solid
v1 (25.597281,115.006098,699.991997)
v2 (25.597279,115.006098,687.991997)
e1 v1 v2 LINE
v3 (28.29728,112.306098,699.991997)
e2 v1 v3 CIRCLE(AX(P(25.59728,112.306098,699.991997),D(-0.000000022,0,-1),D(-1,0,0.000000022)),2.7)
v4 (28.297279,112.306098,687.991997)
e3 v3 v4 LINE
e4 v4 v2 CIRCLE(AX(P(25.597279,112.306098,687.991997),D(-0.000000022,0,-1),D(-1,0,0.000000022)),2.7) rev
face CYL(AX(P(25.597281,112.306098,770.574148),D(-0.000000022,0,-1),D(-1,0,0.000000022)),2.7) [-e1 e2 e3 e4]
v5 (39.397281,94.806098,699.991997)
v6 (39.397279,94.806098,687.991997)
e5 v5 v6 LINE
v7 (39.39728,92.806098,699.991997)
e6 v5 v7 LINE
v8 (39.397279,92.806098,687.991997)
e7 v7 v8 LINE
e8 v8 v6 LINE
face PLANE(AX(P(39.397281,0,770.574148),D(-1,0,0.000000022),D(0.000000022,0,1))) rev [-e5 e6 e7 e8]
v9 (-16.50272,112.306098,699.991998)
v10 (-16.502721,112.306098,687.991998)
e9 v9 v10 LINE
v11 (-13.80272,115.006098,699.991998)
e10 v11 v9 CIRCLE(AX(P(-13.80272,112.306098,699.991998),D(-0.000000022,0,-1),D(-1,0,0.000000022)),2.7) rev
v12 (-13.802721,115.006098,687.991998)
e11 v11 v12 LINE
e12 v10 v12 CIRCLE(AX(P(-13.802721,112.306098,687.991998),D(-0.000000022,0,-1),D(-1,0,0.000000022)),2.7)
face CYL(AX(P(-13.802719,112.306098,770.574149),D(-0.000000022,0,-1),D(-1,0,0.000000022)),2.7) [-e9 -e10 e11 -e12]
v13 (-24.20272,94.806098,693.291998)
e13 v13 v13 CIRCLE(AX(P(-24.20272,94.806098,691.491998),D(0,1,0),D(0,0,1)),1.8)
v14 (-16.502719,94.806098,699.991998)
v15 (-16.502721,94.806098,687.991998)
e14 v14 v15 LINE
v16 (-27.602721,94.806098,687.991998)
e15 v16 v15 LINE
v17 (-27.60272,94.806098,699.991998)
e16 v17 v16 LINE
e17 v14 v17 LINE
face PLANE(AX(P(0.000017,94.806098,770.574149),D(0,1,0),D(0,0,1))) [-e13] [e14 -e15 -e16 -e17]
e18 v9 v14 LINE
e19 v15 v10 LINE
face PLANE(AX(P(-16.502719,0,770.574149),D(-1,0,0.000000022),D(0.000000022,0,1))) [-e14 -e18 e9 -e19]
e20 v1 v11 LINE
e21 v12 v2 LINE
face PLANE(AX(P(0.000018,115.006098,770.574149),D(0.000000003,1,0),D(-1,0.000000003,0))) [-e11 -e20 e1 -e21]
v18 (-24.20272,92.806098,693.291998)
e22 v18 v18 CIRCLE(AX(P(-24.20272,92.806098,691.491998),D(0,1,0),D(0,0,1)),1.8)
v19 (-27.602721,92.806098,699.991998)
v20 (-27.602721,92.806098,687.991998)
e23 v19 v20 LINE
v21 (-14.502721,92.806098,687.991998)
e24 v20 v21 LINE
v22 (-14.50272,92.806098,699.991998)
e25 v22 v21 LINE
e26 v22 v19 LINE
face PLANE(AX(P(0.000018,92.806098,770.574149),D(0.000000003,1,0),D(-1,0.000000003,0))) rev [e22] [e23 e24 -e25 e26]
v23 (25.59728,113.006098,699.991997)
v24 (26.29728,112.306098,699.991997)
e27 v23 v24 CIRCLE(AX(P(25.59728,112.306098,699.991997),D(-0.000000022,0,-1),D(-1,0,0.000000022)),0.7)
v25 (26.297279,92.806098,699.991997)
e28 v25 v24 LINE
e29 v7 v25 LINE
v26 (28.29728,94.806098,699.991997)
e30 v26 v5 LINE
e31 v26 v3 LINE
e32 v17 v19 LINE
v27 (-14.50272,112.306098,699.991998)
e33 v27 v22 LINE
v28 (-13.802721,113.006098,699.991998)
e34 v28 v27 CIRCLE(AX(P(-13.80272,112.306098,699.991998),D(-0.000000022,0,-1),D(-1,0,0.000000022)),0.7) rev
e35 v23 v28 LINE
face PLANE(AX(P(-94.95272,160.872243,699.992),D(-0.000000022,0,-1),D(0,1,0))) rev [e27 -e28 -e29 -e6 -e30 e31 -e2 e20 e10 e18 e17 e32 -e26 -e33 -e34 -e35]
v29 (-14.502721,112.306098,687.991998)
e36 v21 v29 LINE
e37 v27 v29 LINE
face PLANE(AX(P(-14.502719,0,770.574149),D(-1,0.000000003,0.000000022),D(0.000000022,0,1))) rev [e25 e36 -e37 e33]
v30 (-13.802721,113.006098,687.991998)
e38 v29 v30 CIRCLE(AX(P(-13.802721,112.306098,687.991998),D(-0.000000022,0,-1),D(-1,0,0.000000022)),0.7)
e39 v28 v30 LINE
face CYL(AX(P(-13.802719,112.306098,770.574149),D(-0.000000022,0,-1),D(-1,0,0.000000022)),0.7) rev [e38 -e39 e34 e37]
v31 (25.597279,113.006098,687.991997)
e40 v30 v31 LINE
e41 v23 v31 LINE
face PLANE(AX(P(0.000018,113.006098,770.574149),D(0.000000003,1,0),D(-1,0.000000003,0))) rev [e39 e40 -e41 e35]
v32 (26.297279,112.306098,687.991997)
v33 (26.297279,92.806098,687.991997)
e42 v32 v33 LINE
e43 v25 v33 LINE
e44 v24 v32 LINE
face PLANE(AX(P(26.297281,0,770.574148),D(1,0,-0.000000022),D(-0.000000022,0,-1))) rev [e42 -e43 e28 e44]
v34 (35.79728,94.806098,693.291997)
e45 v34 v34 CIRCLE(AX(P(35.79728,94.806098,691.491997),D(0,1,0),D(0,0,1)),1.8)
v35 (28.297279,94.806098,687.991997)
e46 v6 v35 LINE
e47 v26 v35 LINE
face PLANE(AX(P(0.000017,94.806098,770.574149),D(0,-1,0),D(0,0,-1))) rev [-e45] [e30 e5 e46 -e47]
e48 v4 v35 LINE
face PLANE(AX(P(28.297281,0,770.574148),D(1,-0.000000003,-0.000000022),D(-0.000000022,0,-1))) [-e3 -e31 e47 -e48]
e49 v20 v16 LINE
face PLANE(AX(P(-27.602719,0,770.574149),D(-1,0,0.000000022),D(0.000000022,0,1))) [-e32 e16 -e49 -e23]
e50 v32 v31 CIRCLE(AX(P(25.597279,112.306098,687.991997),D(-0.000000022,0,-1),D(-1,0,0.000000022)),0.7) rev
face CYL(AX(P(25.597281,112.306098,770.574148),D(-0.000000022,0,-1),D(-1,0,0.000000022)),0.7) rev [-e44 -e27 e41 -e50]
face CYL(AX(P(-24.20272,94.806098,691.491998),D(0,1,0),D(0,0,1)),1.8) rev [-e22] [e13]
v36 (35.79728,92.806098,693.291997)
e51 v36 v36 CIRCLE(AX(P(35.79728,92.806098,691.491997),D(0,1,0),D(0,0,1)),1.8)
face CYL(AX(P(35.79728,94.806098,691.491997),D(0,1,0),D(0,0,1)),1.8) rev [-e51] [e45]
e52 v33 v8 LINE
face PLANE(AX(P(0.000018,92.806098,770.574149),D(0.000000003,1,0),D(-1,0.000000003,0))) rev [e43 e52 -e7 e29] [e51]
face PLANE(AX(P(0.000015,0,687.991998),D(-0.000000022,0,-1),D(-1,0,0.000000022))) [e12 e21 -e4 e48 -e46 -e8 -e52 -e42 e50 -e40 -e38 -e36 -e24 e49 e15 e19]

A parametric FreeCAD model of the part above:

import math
import FreeCAD as App
import Part
import Sketcher

doc = App.newDocument("Part")
body = doc.addObject("PartDesign::Body", "Body")

# Sketch on XY plane
sketch1 = body.newObject("Sketcher::SketchObject", "Sketch")
sketch1.AttachmentSupport = (doc.getObject("XY_Plane"), [""])
sketch1.MapMode = "FlatFace"
sketch1.AttachmentOffset = App.Placement(App.Vector(0, 0, 687.991999), App.Rotation())
sketch1.addGeometry([
    Part.LineSegment(App.Vector(-14.5, 92.8, 0), App.Vector(-14.5, 93.3, 0)),  # 0
    Part.LineSegment(App.Vector(-14.5, 93.3, 0), App.Vector(-14.5, 112.3, 0)),  # 1
    Part.ArcOfCircle(Part.Circle(App.Vector(-13.8, 112.3, 0), App.Vector(0, 0, 1), 0.7), math.radians(90), math.radians(180)),  # 2
    Part.LineSegment(App.Vector(-13.8, 113, 0), App.Vector(25.6, 113, 0)),  # 3
    Part.ArcOfCircle(Part.Circle(App.Vector(25.6, 112.3, 0), App.Vector(0, 0, 1), 0.7), math.radians(0), math.radians(90)),  # 4
    Part.LineSegment(App.Vector(26.3, 112.3, 0), App.Vector(26.3, 93.3, 0)),  # 5
    Part.LineSegment(App.Vector(26.3, 93.3, 0), App.Vector(26.3, 92.8, 0)),  # 6
    Part.LineSegment(App.Vector(26.3, 92.8, 0), App.Vector(39.4, 92.8, 0)),  # 7
    Part.LineSegment(App.Vector(39.4, 92.8, 0), App.Vector(39.4, 94.8, 0)),  # 8
    Part.LineSegment(App.Vector(39.4, 94.8, 0), App.Vector(28.3, 94.8, 0)),  # 9
    Part.LineSegment(App.Vector(28.3, 94.8, 0), App.Vector(28.3, 112.3, 0)),  # 10
    Part.ArcOfCircle(Part.Circle(App.Vector(25.6, 112.3, 0), App.Vector(0, 0, 1), 2.7), math.radians(0), math.radians(90)),  # 11
    Part.LineSegment(App.Vector(25.6, 115, 0), App.Vector(-13.8, 115, 0)),  # 12
    Part.ArcOfCircle(Part.Circle(App.Vector(-13.8, 112.3, 0), App.Vector(0, 0, 1), 2.7), math.radians(90), math.radians(180)),  # 13
    Part.LineSegment(App.Vector(-16.5, 112.3, 0), App.Vector(-16.5, 94.8, 0)),  # 14
    Part.LineSegment(App.Vector(-16.5, 94.8, 0), App.Vector(-27.6, 94.8, 0)),  # 15
    Part.LineSegment(App.Vector(-27.6, 94.8, 0), App.Vector(-27.6, 92.8, 0)),  # 16
    Part.LineSegment(App.Vector(-27.6, 92.8, 0), App.Vector(-14.5, 92.8, 0)),  # 17
], False)
sketch1.addConstraint([
    Sketcher.Constraint("Coincident", 0, 2, 1, 1),
    Sketcher.Constraint("Tangent", 1, 2, 2, 2),
    Sketcher.Constraint("Tangent", 2, 1, 3, 1),
    Sketcher.Constraint("Tangent", 3, 2, 4, 2),
    Sketcher.Constraint("Tangent", 4, 1, 5, 1),
    Sketcher.Constraint("Coincident", 5, 2, 6, 1),
    Sketcher.Constraint("Coincident", 6, 2, 7, 1),
    Sketcher.Constraint("Coincident", 7, 2, 8, 1),
    Sketcher.Constraint("Coincident", 8, 2, 9, 1),
    Sketcher.Constraint("Coincident", 9, 2, 10, 1),
    Sketcher.Constraint("Tangent", 10, 2, 11, 1),
    Sketcher.Constraint("Tangent", 11, 2, 12, 1),
    Sketcher.Constraint("Tangent", 12, 2, 13, 1),
    Sketcher.Constraint("Tangent", 13, 2, 14, 1),
    Sketcher.Constraint("Coincident", 14, 2, 15, 1),
    Sketcher.Constraint("Coincident", 15, 2, 16, 1),
    Sketcher.Constraint("Coincident", 16, 2, 17, 1),
    Sketcher.Constraint("Coincident", 17, 2, 0, 1),
    Sketcher.Constraint("Vertical", 0),
    Sketcher.Constraint("Vertical", 1),
    Sketcher.Constraint("Horizontal", 3),
    Sketcher.Constraint("Vertical", 5),
    Sketcher.Constraint("Vertical", 6),
    Sketcher.Constraint("Horizontal", 7),
    Sketcher.Constraint("Vertical", 8),
    Sketcher.Constraint("Horizontal", 9),
    Sketcher.Constraint("Vertical", 10),
    Sketcher.Constraint("Horizontal", 12),
    Sketcher.Constraint("Vertical", 14),
    Sketcher.Constraint("Horizontal", 15),
    Sketcher.Constraint("Vertical", 16),
    Sketcher.Constraint("Horizontal", 17),
    Sketcher.Constraint("Coincident", 11, 3, 4, 3),
    Sketcher.Constraint("Coincident", 13, 3, 2, 3),
    Sketcher.Constraint("Equal", 2, 4),
    Sketcher.Constraint("Horizontal", 0, 2, 5, 2),
    Sketcher.Constraint("Horizontal", 9, 2, 14, 2),
    Sketcher.Constraint("Horizontal", 7, 2, 16, 2),
    Sketcher.Constraint("Equal", 9, 15),
    Sketcher.Constraint("Radius", 2, 0.7),
    Sketcher.Constraint("Radius", 11, 2.7),
    Sketcher.Constraint("DistanceY", 1, 1, 1, 2, 19.0),
    Sketcher.Constraint("DistanceY", 8, 1, 8, 2, 2.0),
    Sketcher.Constraint("DistanceX", 3, 1, 3, 2, 39.4),
    Sketcher.Constraint("DistanceX", 7, 1, 7, 2, 13.1),
    Sketcher.Constraint("DistanceY", 0, 1, 0, 2, 0.5),
    Sketcher.Constraint("DistanceY", -1, 1, 2, 3, 112.306098),
    Sketcher.Constraint("DistanceX", 2, 3, -1, 1, 13.802721),
])
pad1 = body.newObject("PartDesign::Pad", "Pad")
pad1.Profile = sketch1
pad1.Length = 12

# Sketch on XZ plane
sketch2 = body.newObject("Sketcher::SketchObject", "Sketch001")
sketch2.AttachmentSupport = (doc.getObject("XZ_Plane"), [""])
sketch2.MapMode = "FlatFace"
sketch2.AttachmentOffset = App.Placement(App.Vector(0, 0, -94.806098), App.Rotation())
sketch2.addGeometry([
    Part.Circle(App.Vector(-24.2, 691.5, 0), App.Vector(0, 0, 1), 1.8),
    Part.Circle(App.Vector(35.8, 691.5, 0), App.Vector(0, 0, 1), 1.8),
], False)
sketch2.addConstraint([
    Sketcher.Constraint("Equal", 0, 1),
    Sketcher.Constraint("Horizontal", 0, 3, 1, 3),
    Sketcher.Constraint("Diameter", 0, 3.6),
    Sketcher.Constraint("DistanceX", 0, 3, 1, 3, 60.0),
    Sketcher.Constraint("DistanceY", -1, 1, 0, 3, 691.491998),
    Sketcher.Constraint("DistanceX", 0, 3, -1, 1, 24.20272),
])
doc.recompute()
hole = body.newObject("PartDesign::Hole", "Hole")
hole.Profile = sketch2
hole.ThreadType = "None"
hole.Diameter = 3.6
hole.DepthType = "ThroughAll"
hole.Reversed = True

doc.recompute()
